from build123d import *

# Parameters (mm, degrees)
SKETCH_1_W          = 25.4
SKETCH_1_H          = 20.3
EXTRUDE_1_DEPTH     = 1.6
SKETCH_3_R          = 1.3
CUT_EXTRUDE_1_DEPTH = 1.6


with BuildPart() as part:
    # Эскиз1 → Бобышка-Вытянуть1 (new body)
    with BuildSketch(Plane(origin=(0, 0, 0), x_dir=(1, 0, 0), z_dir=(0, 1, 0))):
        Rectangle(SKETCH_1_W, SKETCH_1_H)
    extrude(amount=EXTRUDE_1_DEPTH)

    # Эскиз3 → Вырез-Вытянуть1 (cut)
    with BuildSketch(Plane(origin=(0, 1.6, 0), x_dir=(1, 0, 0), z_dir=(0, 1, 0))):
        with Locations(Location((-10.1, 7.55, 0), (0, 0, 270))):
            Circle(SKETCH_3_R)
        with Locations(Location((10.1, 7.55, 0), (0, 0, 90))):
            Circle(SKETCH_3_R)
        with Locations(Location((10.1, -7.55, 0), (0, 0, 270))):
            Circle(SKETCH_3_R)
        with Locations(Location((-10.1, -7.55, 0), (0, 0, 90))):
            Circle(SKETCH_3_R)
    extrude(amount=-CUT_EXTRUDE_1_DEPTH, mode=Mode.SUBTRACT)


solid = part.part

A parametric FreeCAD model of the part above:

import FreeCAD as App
import Part
import Sketcher
from FreeCAD import Vector


def add_polygon(sketch, points):
    """Adds a closed chain of lines whose ends are joined by coincident constraints."""
    first, n = sketch.GeometryCount, len(points)
    for a, b in zip(points, points[1:] + points[:1]):
        sketch.addGeometry(Part.LineSegment(App.Vector(*a, 0), App.Vector(*b, 0)), False)
    for i in range(n):
        sketch.addConstraint(Sketcher.Constraint("Coincident", first + i, 2, first + (i + 1) % n, 1))

doc = App.newDocument("Part")
body = doc.addObject("PartDesign::Body", "Body")

sketch1 = doc.addObject("Sketcher::SketchObject", "Sketch")
body.addObject(sketch1)
sketch1.AttachmentSupport = (doc.XZ_Plane, [""])
sketch1.MapMode = "FlatFace"
add_polygon(sketch1, [(-13, -10), (-13, 10), (13, 10), (13, -10)])
sketch1.addConstraint([
    Sketcher.Constraint("Vertical", 0),
    Sketcher.Constraint("Horizontal", 1),
    Sketcher.Constraint("Vertical", 2),
    Sketcher.Constraint("Horizontal", 3),
    Sketcher.Constraint("Symmetric", 0, 2, 2, 2, -1, 1),
    Sketcher.Constraint("DistanceX", 1, 1, 1, 2, 25.4),
    Sketcher.Constraint("DistanceY", 0, 1, 0, 2, 20.3),
])
pad1 = doc.addObject("PartDesign::Pad", "Pad")
body.addObject(pad1)
pad1.Profile = sketch1
pad1.Length = 1.6
pad1.Reversed = True

sketch2 = doc.addObject("Sketcher::SketchObject", "Sketch001")
body.addObject(sketch2)
sketch2.AttachmentSupport = (doc.XZ_Plane, [""])
sketch2.MapMode = "FlatFace"
sketch2.AttachmentOffset = App.Placement(Vector(0, 0, -1.6), App.Rotation())
sketch2.addGeometry([
    Part.Circle(Vector(-10.1, -7.5, 0), Vector(0, 0, 1), 1.3),
    Part.Circle(Vector(10.1, -7.5, 0), Vector(0, 0, 1), 1.3),
    Part.Circle(Vector(10.1, 7.5, 0), Vector(0, 0, 1), 1.3),
    Part.Circle(Vector(-10.1, 7.5, 0), Vector(0, 0, 1), 1.3),
], False)
sketch2.addConstraint([
    Sketcher.Constraint("Equal", 0, 1),
    Sketcher.Constraint("Equal", 1, 2),
    Sketcher.Constraint("Equal", 2, 3),
    Sketcher.Constraint("Symmetric", 0, 3, 2, 3, -1, 1),
    Sketcher.Constraint("Symmetric", 1, 3, 3, 3, -1, 1),
    Sketcher.Constraint("Symmetric", 0, 3, 1, 3, -2),
    Sketcher.Constraint("Diameter", 0, 2.6),
    Sketcher.Constraint("DistanceX", 0, 3, -1, 1, 10.1),
    Sketcher.Constraint("DistanceY", 1, 3, 2, 3, 15.1),
])
pocket1 = doc.addObject("PartDesign::Pocket", "Pocket")
body.addObject(pocket1)
pocket1.Profile = sketch2
pocket1.Length = 1.6
pocket1.Reversed = True

doc.recompute()
